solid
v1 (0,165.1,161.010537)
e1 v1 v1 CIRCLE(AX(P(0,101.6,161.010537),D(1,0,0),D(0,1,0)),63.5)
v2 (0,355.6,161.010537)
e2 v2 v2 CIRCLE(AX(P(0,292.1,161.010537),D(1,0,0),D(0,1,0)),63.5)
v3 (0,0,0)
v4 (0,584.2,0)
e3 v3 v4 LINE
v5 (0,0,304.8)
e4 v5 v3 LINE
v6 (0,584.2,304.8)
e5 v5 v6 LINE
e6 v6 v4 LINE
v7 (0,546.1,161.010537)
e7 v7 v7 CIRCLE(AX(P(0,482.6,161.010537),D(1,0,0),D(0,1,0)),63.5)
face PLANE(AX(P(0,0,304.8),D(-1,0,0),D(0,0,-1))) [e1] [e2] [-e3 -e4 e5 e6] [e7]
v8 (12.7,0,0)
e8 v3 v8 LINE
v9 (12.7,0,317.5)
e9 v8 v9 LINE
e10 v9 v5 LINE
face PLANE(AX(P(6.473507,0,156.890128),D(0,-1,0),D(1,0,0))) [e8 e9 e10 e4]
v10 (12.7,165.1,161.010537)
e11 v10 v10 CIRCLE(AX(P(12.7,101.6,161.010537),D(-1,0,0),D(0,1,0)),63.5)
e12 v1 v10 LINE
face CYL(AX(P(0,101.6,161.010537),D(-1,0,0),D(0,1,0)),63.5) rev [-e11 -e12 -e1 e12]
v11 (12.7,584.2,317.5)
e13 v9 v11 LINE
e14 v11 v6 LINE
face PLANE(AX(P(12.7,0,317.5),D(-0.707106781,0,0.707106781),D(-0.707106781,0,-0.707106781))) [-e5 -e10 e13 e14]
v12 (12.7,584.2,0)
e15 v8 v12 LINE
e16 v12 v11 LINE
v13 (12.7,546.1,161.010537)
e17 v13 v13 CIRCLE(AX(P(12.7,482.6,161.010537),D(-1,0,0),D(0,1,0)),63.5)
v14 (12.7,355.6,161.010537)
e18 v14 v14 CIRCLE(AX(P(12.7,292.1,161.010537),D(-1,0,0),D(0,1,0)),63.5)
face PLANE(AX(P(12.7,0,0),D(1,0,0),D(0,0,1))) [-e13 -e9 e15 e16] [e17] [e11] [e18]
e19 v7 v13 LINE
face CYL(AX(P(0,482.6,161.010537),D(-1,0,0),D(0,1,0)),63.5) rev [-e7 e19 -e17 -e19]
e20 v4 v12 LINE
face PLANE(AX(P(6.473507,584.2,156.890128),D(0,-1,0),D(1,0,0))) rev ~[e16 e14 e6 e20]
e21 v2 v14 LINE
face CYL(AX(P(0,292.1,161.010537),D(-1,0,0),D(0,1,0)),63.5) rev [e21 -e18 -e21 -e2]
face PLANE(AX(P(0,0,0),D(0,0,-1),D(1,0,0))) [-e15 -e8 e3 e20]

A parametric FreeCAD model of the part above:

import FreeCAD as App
import Part
import Sketcher
from FreeCAD import Vector
Q = App.Units.Quantity

doc = App.newDocument("Part")
body = doc.addObject("PartDesign::Body", "Body")

sketch1 = body.newObject("Sketcher::SketchObject", "Sketch")
sketch1.AttachmentSupport = (doc.getObject("XZ_Plane"), [""])
sketch1.MapMode = "FlatFace"
sketch1.addGeometry([
    Part.LineSegment(Vector(0, 305, 0), Vector(0, 0, 0)),
    Part.LineSegment(Vector(0, 0, 0), Vector(13, 0, 0)),
    Part.LineSegment(Vector(13, 0, 0), Vector(13, 318, 0)),
    Part.LineSegment(Vector(13, 318, 0), Vector(0, 305, 0)),
], False)
sketch1.addConstraint([
    Sketcher.Constraint("Coincident", 0, 2, 1, 1),
    Sketcher.Constraint("Coincident", 1, 2, 2, 1),
    Sketcher.Constraint("Coincident", 2, 2, 3, 1),
    Sketcher.Constraint("Coincident", 3, 2, 0, 1),
    Sketcher.Constraint("Vertical", 0),
    Sketcher.Constraint("Horizontal", 1),
    Sketcher.Constraint("Vertical", 2),
    Sketcher.Constraint("Coincident", 0, 2, -1, 1),
    Sketcher.Constraint("DistanceY", 0, 2, 0, 1, Q("12 in")),
    Sketcher.Constraint("DistanceX", 1, 1, 1, 2, Q("0.5 in")),
    Sketcher.Constraint("DistanceY", 2, 1, 2, 2, Q("12.5 in")),
])
pad1 = body.newObject("PartDesign::Pad", "Pad")
pad1.Profile = sketch1
pad1.Length = Q("23 in")
pad1.Reversed = True

sketch2 = body.newObject("Sketcher::SketchObject", "Sketch001")
sketch2.AttachmentSupport = (doc.getObject("YZ_Plane"), [""])
sketch2.MapMode = "FlatFace"
sketch2.addGeometry([
    Part.Circle(Vector(102, 161, 0), Vector(0, 0, 1), 64),
    Part.Circle(Vector(292, 161, 0), Vector(0, 0, 1), 64),
    Part.Circle(Vector(483, 161, 0), Vector(0, 0, 1), 64),
], False)
sketch2.addConstraint([
    Sketcher.Constraint("Equal", 0, 1),
    Sketcher.Constraint("Equal", 1, 2),
    Sketcher.Constraint("Horizontal", 0, 3, 1, 3),
    Sketcher.Constraint("Horizontal", 1, 3, 2, 3),
    Sketcher.Constraint("Diameter", 0, Q("5 in")),
    Sketcher.Constraint("DistanceX", -1, 1, 0, 3, Q("4 in")),
    Sketcher.Constraint("DistanceX", -1, 1, 2, 3, Q("19 in")),
    Sketcher.Constraint("DistanceX", -1, 1, 1, 3, Q("11.5 in")),
    Sketcher.Constraint("DistanceY", -1, 1, 0, 3, Q("161.010537 mm")),
])
pocket1 = body.newObject("PartDesign::Pocket", "Pocket")
pocket1.Profile = sketch2
pocket1.Type = "ThroughAll"
pocket1.Reversed = True

doc.recompute()
